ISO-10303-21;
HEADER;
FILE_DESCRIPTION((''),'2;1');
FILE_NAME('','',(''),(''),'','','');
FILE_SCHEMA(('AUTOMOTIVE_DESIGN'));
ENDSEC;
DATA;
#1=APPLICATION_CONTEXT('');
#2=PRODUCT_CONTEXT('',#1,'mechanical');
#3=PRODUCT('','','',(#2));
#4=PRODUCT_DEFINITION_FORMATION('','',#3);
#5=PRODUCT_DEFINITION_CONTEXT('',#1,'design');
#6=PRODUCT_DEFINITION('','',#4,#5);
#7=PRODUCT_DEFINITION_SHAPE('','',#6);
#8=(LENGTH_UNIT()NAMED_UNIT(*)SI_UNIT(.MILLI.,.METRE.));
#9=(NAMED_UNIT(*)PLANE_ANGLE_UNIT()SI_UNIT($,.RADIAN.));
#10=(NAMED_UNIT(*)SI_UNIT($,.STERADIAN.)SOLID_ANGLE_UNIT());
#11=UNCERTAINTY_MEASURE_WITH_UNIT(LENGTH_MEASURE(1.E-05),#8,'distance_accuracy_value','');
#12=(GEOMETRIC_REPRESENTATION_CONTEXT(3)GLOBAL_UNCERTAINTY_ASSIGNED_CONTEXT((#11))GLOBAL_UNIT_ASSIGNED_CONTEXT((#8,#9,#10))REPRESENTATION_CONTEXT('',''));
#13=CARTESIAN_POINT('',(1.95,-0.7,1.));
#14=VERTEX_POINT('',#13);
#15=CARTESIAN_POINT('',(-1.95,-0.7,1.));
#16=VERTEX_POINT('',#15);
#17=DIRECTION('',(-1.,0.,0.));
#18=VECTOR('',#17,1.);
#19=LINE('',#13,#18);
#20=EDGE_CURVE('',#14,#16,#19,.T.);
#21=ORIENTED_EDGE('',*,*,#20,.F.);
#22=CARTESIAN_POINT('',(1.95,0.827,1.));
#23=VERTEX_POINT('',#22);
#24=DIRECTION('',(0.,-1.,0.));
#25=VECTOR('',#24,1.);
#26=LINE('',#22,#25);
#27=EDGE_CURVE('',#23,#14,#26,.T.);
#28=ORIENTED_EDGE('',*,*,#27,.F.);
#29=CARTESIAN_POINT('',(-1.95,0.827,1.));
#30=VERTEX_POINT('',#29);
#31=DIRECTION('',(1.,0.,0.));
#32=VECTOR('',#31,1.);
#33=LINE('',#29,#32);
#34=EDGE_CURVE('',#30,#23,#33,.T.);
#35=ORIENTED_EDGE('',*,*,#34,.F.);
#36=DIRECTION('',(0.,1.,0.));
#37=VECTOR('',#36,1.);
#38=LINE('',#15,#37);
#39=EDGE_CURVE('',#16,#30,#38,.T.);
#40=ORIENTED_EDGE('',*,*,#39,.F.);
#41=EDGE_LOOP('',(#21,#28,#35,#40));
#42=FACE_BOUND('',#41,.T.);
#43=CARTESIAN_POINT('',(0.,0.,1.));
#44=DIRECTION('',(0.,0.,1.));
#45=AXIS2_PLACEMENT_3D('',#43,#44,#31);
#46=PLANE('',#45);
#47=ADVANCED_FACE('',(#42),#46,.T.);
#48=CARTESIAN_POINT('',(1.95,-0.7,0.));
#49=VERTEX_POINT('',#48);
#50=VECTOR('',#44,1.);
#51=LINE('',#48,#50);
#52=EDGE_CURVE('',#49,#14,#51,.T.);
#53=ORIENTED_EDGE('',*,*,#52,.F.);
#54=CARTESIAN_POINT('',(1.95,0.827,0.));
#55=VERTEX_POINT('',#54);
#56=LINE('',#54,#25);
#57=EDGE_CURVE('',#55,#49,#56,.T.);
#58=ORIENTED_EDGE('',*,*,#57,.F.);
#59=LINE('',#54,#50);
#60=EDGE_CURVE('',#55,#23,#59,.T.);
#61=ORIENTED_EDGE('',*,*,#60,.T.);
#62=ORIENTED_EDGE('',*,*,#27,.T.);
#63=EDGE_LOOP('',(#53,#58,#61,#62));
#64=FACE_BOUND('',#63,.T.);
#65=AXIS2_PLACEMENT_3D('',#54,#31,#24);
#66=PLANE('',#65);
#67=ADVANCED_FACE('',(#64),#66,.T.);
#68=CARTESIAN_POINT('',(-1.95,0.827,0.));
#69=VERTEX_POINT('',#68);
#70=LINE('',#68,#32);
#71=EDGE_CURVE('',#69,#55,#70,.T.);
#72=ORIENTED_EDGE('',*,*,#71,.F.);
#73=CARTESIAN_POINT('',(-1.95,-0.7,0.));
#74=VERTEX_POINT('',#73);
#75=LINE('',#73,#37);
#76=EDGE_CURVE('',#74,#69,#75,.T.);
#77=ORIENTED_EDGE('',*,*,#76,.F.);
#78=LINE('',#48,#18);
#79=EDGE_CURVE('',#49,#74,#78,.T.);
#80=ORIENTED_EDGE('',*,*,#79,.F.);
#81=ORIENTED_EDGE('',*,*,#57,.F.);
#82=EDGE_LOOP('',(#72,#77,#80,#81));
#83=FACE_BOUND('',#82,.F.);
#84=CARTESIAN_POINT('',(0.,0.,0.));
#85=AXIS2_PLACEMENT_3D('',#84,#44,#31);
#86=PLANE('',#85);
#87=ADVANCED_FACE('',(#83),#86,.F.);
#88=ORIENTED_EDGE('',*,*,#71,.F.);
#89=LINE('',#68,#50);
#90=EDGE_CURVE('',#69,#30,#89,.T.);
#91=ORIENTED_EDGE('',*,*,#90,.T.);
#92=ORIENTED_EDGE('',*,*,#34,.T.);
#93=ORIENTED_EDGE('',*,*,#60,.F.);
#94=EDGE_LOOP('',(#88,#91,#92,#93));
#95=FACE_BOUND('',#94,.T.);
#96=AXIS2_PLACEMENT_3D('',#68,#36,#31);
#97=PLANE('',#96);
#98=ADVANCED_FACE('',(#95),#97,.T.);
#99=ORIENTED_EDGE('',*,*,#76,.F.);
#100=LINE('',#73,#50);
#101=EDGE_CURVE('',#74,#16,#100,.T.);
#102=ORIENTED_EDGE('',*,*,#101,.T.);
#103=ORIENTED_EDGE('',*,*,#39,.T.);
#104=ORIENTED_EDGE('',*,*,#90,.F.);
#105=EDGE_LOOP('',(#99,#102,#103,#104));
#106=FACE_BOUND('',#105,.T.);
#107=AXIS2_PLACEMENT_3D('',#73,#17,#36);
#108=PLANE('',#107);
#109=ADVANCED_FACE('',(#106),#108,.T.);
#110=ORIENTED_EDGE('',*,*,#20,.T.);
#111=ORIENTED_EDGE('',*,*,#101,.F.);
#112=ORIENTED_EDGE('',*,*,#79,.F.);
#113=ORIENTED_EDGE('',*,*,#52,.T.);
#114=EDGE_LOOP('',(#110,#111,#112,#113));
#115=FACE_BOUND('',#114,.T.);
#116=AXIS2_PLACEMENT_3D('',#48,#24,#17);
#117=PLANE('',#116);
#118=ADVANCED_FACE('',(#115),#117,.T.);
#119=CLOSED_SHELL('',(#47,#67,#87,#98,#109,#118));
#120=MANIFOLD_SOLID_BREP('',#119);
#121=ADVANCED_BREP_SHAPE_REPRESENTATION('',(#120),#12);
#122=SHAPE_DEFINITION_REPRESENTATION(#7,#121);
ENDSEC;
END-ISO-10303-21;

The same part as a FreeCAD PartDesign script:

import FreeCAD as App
import Part
import Sketcher
Q = App.Units.Quantity

doc = App.newDocument("Part")
body = doc.addObject("PartDesign::Body", "Body")

sketch1 = body.newObject("Sketcher::SketchObject", "Sketch")
sketch1.AttachmentSupport = (doc.getObject("XY_Plane"), [""])
sketch1.MapMode = "FlatFace"
sketch1.addGeometry([
    Part.LineSegment(App.Vector(1.9, 0.8, 0), App.Vector(-1.9, 0.8, 0)),
    Part.LineSegment(App.Vector(-1.9, 0.8, 0), App.Vector(-1.9, -0.7, 0)),
    Part.LineSegment(App.Vector(-1.9, -0.7, 0), App.Vector(1.9, -0.7, 0)),
    Part.LineSegment(App.Vector(1.9, -0.7, 0), App.Vector(1.9, 0.8, 0)),
], False)
sketch1.addConstraint([
    Sketcher.Constraint("Coincident", 0, 2, 1, 1),
    Sketcher.Constraint("Coincident", 1, 2, 2, 1),
    Sketcher.Constraint("Coincident", 2, 2, 3, 1),
    Sketcher.Constraint("Coincident", 3, 2, 0, 1),
    Sketcher.Constraint("Horizontal", 0),
    Sketcher.Constraint("Vertical", 1),
    Sketcher.Constraint("Horizontal", 2),
    Sketcher.Constraint("Vertical", 3),
    Sketcher.Constraint("DistanceX", 0, 2, 0, 1, Q("3.9 mm")),
    Sketcher.Constraint("DistanceY", 1, 2, -1, 1, Q("0.7 mm")),
    Sketcher.Constraint("DistanceY", 1, 2, 1, 1, Q("1.527 mm")),
    Sketcher.Constraint("DistanceX", 0, 2, -1, 1, Q("1.95 mm")),
])
pad1 = body.newObject("PartDesign::Pad", "Pad")
pad1.Profile = sketch1
pad1.Length = 1

doc.recompute()
